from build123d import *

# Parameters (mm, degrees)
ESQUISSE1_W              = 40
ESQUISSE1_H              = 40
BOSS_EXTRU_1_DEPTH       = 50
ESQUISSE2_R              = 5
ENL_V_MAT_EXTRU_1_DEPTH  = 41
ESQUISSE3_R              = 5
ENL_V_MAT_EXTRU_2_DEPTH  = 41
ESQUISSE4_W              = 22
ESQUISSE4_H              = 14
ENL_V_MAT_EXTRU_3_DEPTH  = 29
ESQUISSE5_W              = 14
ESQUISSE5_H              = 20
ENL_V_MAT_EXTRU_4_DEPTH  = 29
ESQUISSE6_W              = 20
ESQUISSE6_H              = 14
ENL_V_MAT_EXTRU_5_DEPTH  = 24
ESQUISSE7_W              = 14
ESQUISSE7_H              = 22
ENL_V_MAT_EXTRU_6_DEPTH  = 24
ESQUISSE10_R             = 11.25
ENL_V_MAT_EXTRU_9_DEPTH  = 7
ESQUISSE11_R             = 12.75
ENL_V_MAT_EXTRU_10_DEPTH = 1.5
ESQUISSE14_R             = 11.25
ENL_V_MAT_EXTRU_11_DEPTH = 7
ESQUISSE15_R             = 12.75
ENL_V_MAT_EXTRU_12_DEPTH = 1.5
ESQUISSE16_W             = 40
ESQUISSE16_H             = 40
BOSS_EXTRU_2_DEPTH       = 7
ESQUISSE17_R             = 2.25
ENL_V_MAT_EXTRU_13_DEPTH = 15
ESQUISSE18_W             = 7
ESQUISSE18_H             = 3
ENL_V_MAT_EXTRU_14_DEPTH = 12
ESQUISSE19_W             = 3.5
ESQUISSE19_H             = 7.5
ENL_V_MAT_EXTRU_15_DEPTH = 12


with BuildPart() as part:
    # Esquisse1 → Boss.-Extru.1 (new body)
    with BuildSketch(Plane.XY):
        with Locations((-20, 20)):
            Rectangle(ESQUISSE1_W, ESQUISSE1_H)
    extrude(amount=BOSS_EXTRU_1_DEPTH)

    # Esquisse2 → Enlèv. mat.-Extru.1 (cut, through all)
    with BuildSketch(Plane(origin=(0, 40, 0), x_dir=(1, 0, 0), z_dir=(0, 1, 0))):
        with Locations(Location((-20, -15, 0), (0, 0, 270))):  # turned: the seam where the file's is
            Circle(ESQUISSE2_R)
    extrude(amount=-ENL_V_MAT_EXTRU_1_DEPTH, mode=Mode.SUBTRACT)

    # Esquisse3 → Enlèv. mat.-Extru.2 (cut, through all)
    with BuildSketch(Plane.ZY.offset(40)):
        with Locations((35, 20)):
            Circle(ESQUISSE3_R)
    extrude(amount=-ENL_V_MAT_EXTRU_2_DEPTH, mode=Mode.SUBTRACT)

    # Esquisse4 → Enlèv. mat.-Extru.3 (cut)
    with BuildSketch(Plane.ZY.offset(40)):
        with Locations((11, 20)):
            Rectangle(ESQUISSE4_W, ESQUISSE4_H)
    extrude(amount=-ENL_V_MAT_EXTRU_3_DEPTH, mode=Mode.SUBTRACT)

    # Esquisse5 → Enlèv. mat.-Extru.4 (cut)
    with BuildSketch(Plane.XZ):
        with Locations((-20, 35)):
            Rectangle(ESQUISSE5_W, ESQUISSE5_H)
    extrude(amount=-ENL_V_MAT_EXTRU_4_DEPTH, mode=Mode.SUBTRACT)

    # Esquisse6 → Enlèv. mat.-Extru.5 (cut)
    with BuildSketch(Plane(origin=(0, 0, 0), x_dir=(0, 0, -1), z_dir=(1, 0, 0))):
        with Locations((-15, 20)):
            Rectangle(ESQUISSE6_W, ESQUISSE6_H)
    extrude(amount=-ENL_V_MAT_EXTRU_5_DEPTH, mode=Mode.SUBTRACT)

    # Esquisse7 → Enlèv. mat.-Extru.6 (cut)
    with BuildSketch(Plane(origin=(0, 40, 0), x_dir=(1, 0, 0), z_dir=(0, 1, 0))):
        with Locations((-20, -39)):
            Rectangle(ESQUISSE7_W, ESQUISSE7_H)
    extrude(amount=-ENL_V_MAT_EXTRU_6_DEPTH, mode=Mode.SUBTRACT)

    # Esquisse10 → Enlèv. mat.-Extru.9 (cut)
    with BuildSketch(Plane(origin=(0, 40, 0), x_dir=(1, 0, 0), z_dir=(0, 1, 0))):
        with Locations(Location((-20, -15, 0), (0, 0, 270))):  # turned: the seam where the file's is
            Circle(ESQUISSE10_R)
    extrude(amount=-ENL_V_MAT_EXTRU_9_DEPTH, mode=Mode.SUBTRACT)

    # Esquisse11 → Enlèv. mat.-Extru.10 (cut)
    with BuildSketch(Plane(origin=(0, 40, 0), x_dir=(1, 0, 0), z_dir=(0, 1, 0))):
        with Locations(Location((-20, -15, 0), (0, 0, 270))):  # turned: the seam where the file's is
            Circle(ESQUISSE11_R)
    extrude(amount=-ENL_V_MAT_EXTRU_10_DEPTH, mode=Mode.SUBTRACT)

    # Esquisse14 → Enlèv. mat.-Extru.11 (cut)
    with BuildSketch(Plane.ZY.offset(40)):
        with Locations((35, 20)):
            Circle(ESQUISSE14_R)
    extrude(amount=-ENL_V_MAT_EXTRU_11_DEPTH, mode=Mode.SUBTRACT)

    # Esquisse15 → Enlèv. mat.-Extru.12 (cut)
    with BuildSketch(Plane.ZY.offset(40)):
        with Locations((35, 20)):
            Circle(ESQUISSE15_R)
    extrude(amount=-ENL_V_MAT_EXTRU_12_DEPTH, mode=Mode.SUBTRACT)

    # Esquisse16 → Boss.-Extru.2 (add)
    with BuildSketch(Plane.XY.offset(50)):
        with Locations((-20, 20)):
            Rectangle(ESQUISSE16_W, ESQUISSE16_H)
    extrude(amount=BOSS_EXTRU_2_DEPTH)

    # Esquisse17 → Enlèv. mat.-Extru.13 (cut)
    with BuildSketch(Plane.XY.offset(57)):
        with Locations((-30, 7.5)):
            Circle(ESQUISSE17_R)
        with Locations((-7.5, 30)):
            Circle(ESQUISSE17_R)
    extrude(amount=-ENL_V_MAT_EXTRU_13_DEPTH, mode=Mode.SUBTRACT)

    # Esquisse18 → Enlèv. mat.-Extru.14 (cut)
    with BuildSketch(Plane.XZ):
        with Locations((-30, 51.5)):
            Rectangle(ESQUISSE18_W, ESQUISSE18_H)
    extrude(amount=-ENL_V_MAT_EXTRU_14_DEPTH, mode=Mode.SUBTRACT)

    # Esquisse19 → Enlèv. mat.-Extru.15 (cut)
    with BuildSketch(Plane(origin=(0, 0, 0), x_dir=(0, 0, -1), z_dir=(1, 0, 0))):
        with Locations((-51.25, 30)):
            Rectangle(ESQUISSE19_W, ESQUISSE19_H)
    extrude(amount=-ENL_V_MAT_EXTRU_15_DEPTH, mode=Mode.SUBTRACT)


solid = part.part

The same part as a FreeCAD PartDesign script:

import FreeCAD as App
import Part
import Sketcher


def add_polygon(sketch, points):
    """Adds a closed chain of lines whose ends are joined by coincident constraints."""
    first, n = sketch.GeometryCount, len(points)
    for a, b in zip(points, points[1:] + points[:1]):
        sketch.addGeometry(Part.LineSegment(App.Vector(*a, 0), App.Vector(*b, 0)), False)
    for i in range(n):
        sketch.addConstraint(Sketcher.Constraint("Coincident", first + i, 2, first + (i + 1) % n, 1))

doc = App.newDocument("Part")
body = doc.addObject("PartDesign::Body", "Body")

# Sketch on XY plane
sketch1 = body.newObject("Sketcher::SketchObject", "Sketch")
sketch1.AttachmentSupport = (doc.getObject("XY_Plane"), [""])
sketch1.MapMode = "FlatFace"
add_polygon(sketch1, [(-40, 40), (-40, 0), (0, 0), (0, 40)])  # lines 0-3
sketch1.addConstraint([
    Sketcher.Constraint("Vertical", 0),
    Sketcher.Constraint("Horizontal", 1),
    Sketcher.Constraint("Vertical", 2),
    Sketcher.Constraint("Horizontal", 3),
    Sketcher.Constraint("Coincident", 1, 2, -1, 1),
    Sketcher.Constraint("Equal", 3, 0),
    Sketcher.Constraint("DistanceX", 1, 1, 1, 2, 40.0),
])
pad1 = body.newObject("PartDesign::Pad", "Pad")
pad1.Profile = sketch1
pad1.Length = 50

# Sketch on XZ plane
sketch2 = body.newObject("Sketcher::SketchObject", "Sketch001")
sketch2.AttachmentSupport = (doc.getObject("XZ_Plane"), [""])
sketch2.MapMode = "FlatFace"
sketch2.AttachmentOffset = App.Placement(App.Vector(0, 0, -40), App.Rotation())
sketch2.addGeometry(Part.Circle(App.Vector(-20, 15, 0), App.Vector(0, 0, 1), 5), False)
sketch2.addConstraint([
    Sketcher.Constraint("Diameter", 0, 10.0),
    Sketcher.Constraint("DistanceX", 0, 3, -1, 1, 20.0),
    Sketcher.Constraint("DistanceY", -1, 1, 0, 3, 15.0),
])
pocket1 = body.newObject("PartDesign::Pocket", "Pocket")
pocket1.Profile = sketch2
pocket1.Type = "ThroughAll"
pocket1.Reversed = True

# Sketch on YZ plane
sketch3 = body.newObject("Sketcher::SketchObject", "Sketch002")
sketch3.AttachmentSupport = (doc.getObject("YZ_Plane"), [""])
sketch3.MapMode = "FlatFace"
sketch3.AttachmentOffset = App.Placement(App.Vector(0, 0, -40), App.Rotation())
sketch3.addGeometry(Part.Circle(App.Vector(20, 35, 0), App.Vector(0, 0, 1), 5), False)
sketch3.addConstraint([
    Sketcher.Constraint("Diameter", 0, 10.0),
    Sketcher.Constraint("DistanceX", -1, 1, 0, 3, 20.0),
    Sketcher.Constraint("DistanceY", -1, 1, 0, 3, 35.0),
])
pocket2 = body.newObject("PartDesign::Pocket", "Pocket001")
pocket2.Profile = sketch3
pocket2.Type = "ThroughAll"
pocket2.Reversed = True

# Sketch on YZ plane
sketch4 = body.newObject("Sketcher::SketchObject", "Sketch003")
sketch4.AttachmentSupport = (doc.getObject("YZ_Plane"), [""])
sketch4.MapMode = "FlatFace"
sketch4.AttachmentOffset = App.Placement(App.Vector(0, 0, -40), App.Rotation())
add_polygon(sketch4, [(27, 0), (13, 0), (13, 22), (27, 22)])  # lines 0-3
sketch4.addConstraint([
    Sketcher.Constraint("Horizontal", 0),
    Sketcher.Constraint("Vertical", 1),
    Sketcher.Constraint("Horizontal", 2),
    Sketcher.Constraint("Vertical", 3),
    Sketcher.Constraint("PointOnObject", 0, 2, -1),
    Sketcher.Constraint("DistanceX", 0, 2, 0, 1, 14.0),
    Sketcher.Constraint("DistanceY", 1, 1, 1, 2, 22.0),
    Sketcher.Constraint("DistanceX", -1, 1, 0, 2, 13.0),
])
pocket3 = body.newObject("PartDesign::Pocket", "Pocket002")
pocket3.Profile = sketch4
pocket3.Length = 29
pocket3.Reversed = True

# Sketch on XZ plane
sketch5 = body.newObject("Sketcher::SketchObject", "Sketch004")
sketch5.AttachmentSupport = (doc.getObject("XZ_Plane"), [""])
sketch5.MapMode = "FlatFace"
add_polygon(sketch5, [(-27, 45), (-27, 25), (-13, 25), (-13, 45)])  # lines 0-3
sketch5.addConstraint([
    Sketcher.Constraint("Vertical", 0),
    Sketcher.Constraint("Horizontal", 1),
    Sketcher.Constraint("Vertical", 2),
    Sketcher.Constraint("Horizontal", 3),
    Sketcher.Constraint("DistanceX", 1, 1, 1, 2, 14.0),
    Sketcher.Constraint("DistanceY", 0, 2, 0, 1, 20.0),
    Sketcher.Constraint("DistanceX", 0, 2, -1, 1, 27.0),
    Sketcher.Constraint("DistanceY", -1, 1, 0, 2, 25.0),
])
pocket4 = body.newObject("PartDesign::Pocket", "Pocket003")
pocket4.Profile = sketch5
pocket4.Length = 29

# Sketch on YZ plane
sketch6 = body.newObject("Sketcher::SketchObject", "Sketch005")
sketch6.AttachmentSupport = (doc.getObject("YZ_Plane"), [""])
sketch6.MapMode = "FlatFace"
add_polygon(sketch6, [(27, 25), (13, 25), (13, 5), (27, 5)])  # lines 0-3
sketch6.addConstraint([
    Sketcher.Constraint("Horizontal", 0),
    Sketcher.Constraint("Vertical", 1),
    Sketcher.Constraint("Horizontal", 2),
    Sketcher.Constraint("Vertical", 3),
    Sketcher.Constraint("DistanceX", 0, 2, 0, 1, 14.0),
    Sketcher.Constraint("DistanceY", 1, 2, 1, 1, 20.0),
    Sketcher.Constraint("DistanceX", -1, 1, 0, 2, 13.0),
    Sketcher.Constraint("DistanceY", -1, 1, 0, 2, 25.0),
])
pocket5 = body.newObject("PartDesign::Pocket", "Pocket004")
pocket5.Profile = sketch6
pocket5.Length = 24

# Sketch on XZ plane
sketch7 = body.newObject("Sketcher::SketchObject", "Sketch006")
sketch7.AttachmentSupport = (doc.getObject("XZ_Plane"), [""])
sketch7.MapMode = "FlatFace"
sketch7.AttachmentOffset = App.Placement(App.Vector(0, 0, -40), App.Rotation())
add_polygon(sketch7, [(-27, 28), (-27, 50), (-13, 50), (-13, 28)])  # lines 0-3
sketch7.addConstraint([
    Sketcher.Constraint("Vertical", 0),
    Sketcher.Constraint("Horizontal", 1),
    Sketcher.Constraint("Vertical", 2),
    Sketcher.Constraint("Horizontal", 3),
    Sketcher.Constraint("DistanceX", 1, 1, 1, 2, 14.0),
    Sketcher.Constraint("DistanceY", 0, 1, 0, 2, 22.0),
    Sketcher.Constraint("DistanceX", 0, 2, -1, 1, 27.0),
    Sketcher.Constraint("DistanceY", -1, 1, 0, 2, 50.0),
])
pocket6 = body.newObject("PartDesign::Pocket", "Pocket005")
pocket6.Profile = sketch7
pocket6.Length = 24
pocket6.Reversed = True

# Sketch on XZ plane
sketch8 = body.newObject("Sketcher::SketchObject", "Sketch007")
sketch8.AttachmentSupport = (doc.getObject("XZ_Plane"), [""])
sketch8.MapMode = "FlatFace"
sketch8.AttachmentOffset = App.Placement(App.Vector(0, 0, -40), App.Rotation())
sketch8.addGeometry(Part.Circle(App.Vector(-20, 15, 0), App.Vector(0, 0, 1), 11.25), False)
sketch8.addConstraint([
    Sketcher.Constraint("Diameter", 0, 22.5),
    Sketcher.Constraint("DistanceX", 0, 3, -1, 1, 20.0),
    Sketcher.Constraint("DistanceY", -1, 1, 0, 3, 15.0),
])
pocket7 = body.newObject("PartDesign::Pocket", "Pocket006")
pocket7.Profile = sketch8
pocket7.Length = 7
pocket7.Reversed = True

# Sketch on XZ plane
sketch9 = body.newObject("Sketcher::SketchObject", "Sketch008")
sketch9.AttachmentSupport = (doc.getObject("XZ_Plane"), [""])
sketch9.MapMode = "FlatFace"
sketch9.AttachmentOffset = App.Placement(App.Vector(0, 0, -40), App.Rotation())
sketch9.addGeometry(Part.Circle(App.Vector(-20, 15, 0), App.Vector(0, 0, 1), 12.75), False)
sketch9.addConstraint([
    Sketcher.Constraint("Diameter", 0, 25.5),
    Sketcher.Constraint("DistanceX", 0, 3, -1, 1, 20.0),
    Sketcher.Constraint("DistanceY", -1, 1, 0, 3, 15.0),
])
pocket8 = body.newObject("PartDesign::Pocket", "Pocket007")
pocket8.Profile = sketch9
pocket8.Length = 1.5
pocket8.Reversed = True

# Sketch on YZ plane
sketch10 = body.newObject("Sketcher::SketchObject", "Sketch009")
sketch10.AttachmentSupport = (doc.getObject("YZ_Plane"), [""])
sketch10.MapMode = "FlatFace"
sketch10.AttachmentOffset = App.Placement(App.Vector(0, 0, -40), App.Rotation())
sketch10.addGeometry(Part.Circle(App.Vector(20, 35, 0), App.Vector(0, 0, 1), 11.25), False)
sketch10.addConstraint([
    Sketcher.Constraint("Diameter", 0, 22.5),
    Sketcher.Constraint("DistanceX", -1, 1, 0, 3, 20.0),
    Sketcher.Constraint("DistanceY", -1, 1, 0, 3, 35.0),
])
pocket9 = body.newObject("PartDesign::Pocket", "Pocket008")
pocket9.Profile = sketch10
pocket9.Length = 7
pocket9.Reversed = True

# Sketch on YZ plane
sketch11 = body.newObject("Sketcher::SketchObject", "Sketch010")
sketch11.AttachmentSupport = (doc.getObject("YZ_Plane"), [""])
sketch11.MapMode = "FlatFace"
sketch11.AttachmentOffset = App.Placement(App.Vector(0, 0, -40), App.Rotation())
sketch11.addGeometry(Part.Circle(App.Vector(20, 35, 0), App.Vector(0, 0, 1), 12.75), False)
sketch11.addConstraint([
    Sketcher.Constraint("Diameter", 0, 25.5),
    Sketcher.Constraint("DistanceX", -1, 1, 0, 3, 20.0),
    Sketcher.Constraint("DistanceY", -1, 1, 0, 3, 35.0),
])
pocket10 = body.newObject("PartDesign::Pocket", "Pocket009")
pocket10.Profile = sketch11
pocket10.Length = 1.5
pocket10.Reversed = True

# Sketch on XY plane
sketch12 = body.newObject("Sketcher::SketchObject", "Sketch011")
sketch12.AttachmentSupport = (doc.getObject("XY_Plane"), [""])
sketch12.MapMode = "FlatFace"
sketch12.AttachmentOffset = App.Placement(App.Vector(0, 0, 50), App.Rotation())
add_polygon(sketch12, [(-40, 40), (-40, 0), (0, 0), (0, 40)])  # lines 0-3
sketch12.addConstraint([
    Sketcher.Constraint("Vertical", 0),
    Sketcher.Constraint("Horizontal", 1),
    Sketcher.Constraint("Vertical", 2),
    Sketcher.Constraint("Horizontal", 3),
    Sketcher.Constraint("Coincident", 1, 2, -1, 1),
    Sketcher.Constraint("Equal", 3, 0),
    Sketcher.Constraint("DistanceX", 1, 1, 1, 2, 40.0),
])
pad2 = body.newObject("PartDesign::Pad", "Pad001")
pad2.Profile = sketch12
pad2.Length = 7

# Sketch on XY plane
sketch13 = body.newObject("Sketcher::SketchObject", "Sketch012")
sketch13.AttachmentSupport = (doc.getObject("XY_Plane"), [""])
sketch13.MapMode = "FlatFace"
sketch13.AttachmentOffset = App.Placement(App.Vector(0, 0, 57), App.Rotation())
sketch13.addGeometry([
    Part.Circle(App.Vector(-30, 7.5, 0), App.Vector(0, 0, 1), 2.25),
    Part.Circle(App.Vector(-7.5, 30, 0), App.Vector(0, 0, 1), 2.25),
], False)
sketch13.addConstraint([
    Sketcher.Constraint("Equal", 0, 1),
    Sketcher.Constraint("Diameter", 0, 4.5),
    Sketcher.Constraint("DistanceX", 0, 3, -1, 1, 30.0),
    Sketcher.Constraint("DistanceY", -1, 1, 1, 3, 30.0),
    Sketcher.Constraint("DistanceY", -1, 1, 0, 3, 7.5),
    Sketcher.Constraint("DistanceX", 1, 3, -1, 1, 7.5),
])
pocket11 = body.newObject("PartDesign::Pocket", "Pocket010")
pocket11.Profile = sketch13
pocket11.Length = 15

# Sketch on XZ plane
sketch14 = body.newObject("Sketcher::SketchObject", "Sketch013")
sketch14.AttachmentSupport = (doc.getObject("XZ_Plane"), [""])
sketch14.MapMode = "FlatFace"
add_polygon(sketch14, [(-33.5, 53), (-33.5, 50), (-26.5, 50), (-26.5, 53)])  # lines 0-3
sketch14.addConstraint([
    Sketcher.Constraint("Vertical", 0),
    Sketcher.Constraint("Horizontal", 1),
    Sketcher.Constraint("Vertical", 2),
    Sketcher.Constraint("Horizontal", 3),
    Sketcher.Constraint("DistanceX", 1, 1, 1, 2, 7.0),
    Sketcher.Constraint("DistanceY", 0, 2, 0, 1, 3.0),
    Sketcher.Constraint("DistanceY", -1, 1, 0, 2, 50.0),
    Sketcher.Constraint("DistanceX", 0, 2, -1, 1, 33.5),
])
pocket12 = body.newObject("PartDesign::Pocket", "Pocket011")
pocket12.Profile = sketch14
pocket12.Length = 12

# Sketch on YZ plane
sketch15 = body.newObject("Sketcher::SketchObject", "Sketch014")
sketch15.AttachmentSupport = (doc.getObject("YZ_Plane"), [""])
sketch15.MapMode = "FlatFace"
add_polygon(sketch15, [(33.75, 53), (26.25, 53), (26.25, 49.5), (33.75, 49.5)])  # lines 0-3
sketch15.addConstraint([
    Sketcher.Constraint("Horizontal", 0),
    Sketcher.Constraint("Vertical", 1),
    Sketcher.Constraint("Horizontal", 2),
    Sketcher.Constraint("Vertical", 3),
    Sketcher.Constraint("DistanceX", 0, 2, 0, 1, 7.5),
    Sketcher.Constraint("DistanceY", 1, 2, 1, 1, 3.5),
    Sketcher.Constraint("DistanceY", -1, 1, 0, 2, 53.0),
    Sketcher.Constraint("DistanceX", -1, 1, 0, 2, 26.25),
])
pocket13 = body.newObject("PartDesign::Pocket", "Pocket012")
pocket13.Profile = sketch15
pocket13.Length = 12

doc.recompute()
